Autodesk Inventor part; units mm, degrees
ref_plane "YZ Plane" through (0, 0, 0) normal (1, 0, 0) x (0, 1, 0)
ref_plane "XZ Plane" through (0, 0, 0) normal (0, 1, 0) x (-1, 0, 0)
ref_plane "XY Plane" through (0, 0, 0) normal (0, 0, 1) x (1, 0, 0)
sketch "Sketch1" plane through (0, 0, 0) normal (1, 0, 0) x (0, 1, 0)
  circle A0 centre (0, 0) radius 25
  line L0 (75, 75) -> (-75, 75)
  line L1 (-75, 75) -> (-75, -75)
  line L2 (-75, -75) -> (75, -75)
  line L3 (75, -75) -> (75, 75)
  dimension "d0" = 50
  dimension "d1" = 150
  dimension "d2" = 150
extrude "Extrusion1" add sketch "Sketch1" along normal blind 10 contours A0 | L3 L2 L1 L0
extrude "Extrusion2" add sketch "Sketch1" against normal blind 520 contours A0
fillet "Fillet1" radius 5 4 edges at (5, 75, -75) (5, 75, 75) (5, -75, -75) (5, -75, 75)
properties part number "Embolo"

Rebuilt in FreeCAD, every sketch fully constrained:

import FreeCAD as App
import Part
import Sketcher

V = App.Vector
Q = App.Units.Quantity


def edges_at(feature, points):
    """Names of the edges that pass closest to the given points."""
    edges = feature.Shape.Edges
    near = lambda p: min(range(len(edges)), key=lambda i: edges[i].distToShape(Part.Vertex(*p))[0])
    return sorted({f"Edge{near(p) + 1}" for p in points})


def add_polygon(sketch, points):
    """Adds a closed chain of lines whose ends are joined by coincident constraints."""
    first, n = sketch.GeometryCount, len(points)
    for a, b in zip(points, points[1:] + points[:1]):
        sketch.addGeometry(Part.LineSegment(App.Vector(*a, 0), App.Vector(*b, 0)), False)
    for i in range(n):
        sketch.addConstraint(Sketcher.Constraint("Coincident", first + i, 2, first + (i + 1) % n, 1))

doc = App.newDocument("Part")
body = doc.addObject("PartDesign::Body", "Body")

# Sketch on YZ plane
sketch1 = doc.addObject("Sketcher::SketchObject", "Sketch")
body.addObject(sketch1)
sketch1.AttachmentSupport = (doc.YZ_Plane, [""])
sketch1.MapMode = "FlatFace"
add_polygon(sketch1, [(75, -75), (75, 75), (-75, 75), (-75, -75)])  # lines 0-3
sketch1.addConstraint([
    Sketcher.Constraint("Vertical", 0),
    Sketcher.Constraint("Horizontal", 1),
    Sketcher.Constraint("Vertical", 2),
    Sketcher.Constraint("Horizontal", 3),
    Sketcher.Constraint("Symmetric", 0, 2, 2, 2, -1, 1),
    Sketcher.Constraint("Equal", 3, 0),
    Sketcher.Constraint("DistanceX", 1, 2, 1, 1, Q("150 mm")),
])
pad1 = doc.addObject("PartDesign::Pad", "Pad")
body.addObject(pad1)
pad1.Profile = sketch1
pad1.Length = 10

# Sketch on YZ plane
sketch2 = doc.addObject("Sketcher::SketchObject", "Sketch001")
body.addObject(sketch2)
sketch2.AttachmentSupport = (doc.YZ_Plane, [""])
sketch2.MapMode = "FlatFace"
sketch2.addGeometry(Part.Circle(V(0, 0, 0), V(0, 0, 1), 25), False)
sketch2.addConstraint([
    Sketcher.Constraint("Coincident", 0, 3, -1, 1),
    Sketcher.Constraint("Diameter", 0, Q("50 mm")),
])
pad2 = doc.addObject("PartDesign::Pad", "Pad001")
body.addObject(pad2)
pad2.Profile = sketch2
pad2.Length = 520
pad2.Reversed = True
doc.recompute()

fillet = doc.addObject("PartDesign::Fillet", "Fillet")
body.addObject(fillet)
fillet.Base = (pad2, edges_at(pad2, [
    (5, 75, -75),
    (5, 75, 75),
    (5, -75, -75),
    (5, -75, 75),
]))
fillet.Radius = 5

doc.recompute()
